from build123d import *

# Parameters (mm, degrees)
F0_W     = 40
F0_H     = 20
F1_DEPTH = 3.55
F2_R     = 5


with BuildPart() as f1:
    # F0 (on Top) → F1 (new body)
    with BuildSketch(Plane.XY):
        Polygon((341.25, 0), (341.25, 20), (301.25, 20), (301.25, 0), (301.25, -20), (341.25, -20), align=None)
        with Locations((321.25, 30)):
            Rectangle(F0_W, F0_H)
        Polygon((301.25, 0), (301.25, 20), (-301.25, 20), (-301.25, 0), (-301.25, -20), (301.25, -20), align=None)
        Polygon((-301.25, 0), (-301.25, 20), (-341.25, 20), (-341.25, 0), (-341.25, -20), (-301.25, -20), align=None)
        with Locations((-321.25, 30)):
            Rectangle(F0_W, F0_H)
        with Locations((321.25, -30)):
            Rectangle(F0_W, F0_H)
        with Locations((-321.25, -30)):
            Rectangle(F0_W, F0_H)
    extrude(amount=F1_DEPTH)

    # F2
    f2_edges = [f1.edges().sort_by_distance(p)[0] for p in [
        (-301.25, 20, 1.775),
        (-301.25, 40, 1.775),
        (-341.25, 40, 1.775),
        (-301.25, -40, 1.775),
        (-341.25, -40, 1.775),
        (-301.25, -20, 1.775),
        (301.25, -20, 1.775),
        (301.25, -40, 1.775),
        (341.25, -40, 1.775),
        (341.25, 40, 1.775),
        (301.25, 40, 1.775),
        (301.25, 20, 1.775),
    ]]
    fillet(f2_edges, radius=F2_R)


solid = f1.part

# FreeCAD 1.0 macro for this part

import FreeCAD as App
import Part
import Sketcher

V = App.Vector


def edges_at(feature, points):
    """Names of the edges that pass closest to the given points."""
    edges = feature.Shape.Edges
    near = lambda p: min(range(len(edges)), key=lambda i: edges[i].distToShape(Part.Vertex(*p))[0])
    return sorted({f"Edge{near(p) + 1}" for p in points})

doc = App.newDocument("Part")
body = doc.addObject("PartDesign::Body", "Body")

# Sketch on XY plane
sketch1 = body.newObject("Sketcher::SketchObject", "Sketch")
sketch1.AttachmentSupport = (doc.getObject("XY_Plane"), [""])
sketch1.MapMode = "FlatFace"
sketch1.addGeometry(Part.LineSegment(V(341, 40, 0), V(301, 40, 0)), False)
sketch1.addGeometry(Part.LineSegment(V(301, 40, 0), V(301, 20, 0)), False)
sketch1.addGeometry(Part.LineSegment(V(301, 20, 0), V(-301, 20, 0)), False)
sketch1.addGeometry(Part.LineSegment(V(-301, 20, 0), V(-301, 40, 0)), False)
sketch1.addGeometry(Part.LineSegment(V(-301, 40, 0), V(-341, 40, 0)), False)
sketch1.addGeometry(Part.LineSegment(V(-341, 40, 0), V(-341, -40, 0)), False)
sketch1.addGeometry(Part.LineSegment(V(-341, -40, 0), V(-301, -40, 0)), False)
sketch1.addGeometry(Part.LineSegment(V(-301, -40, 0), V(-301, -20, 0)), False)
sketch1.addGeometry(Part.LineSegment(V(-301, -20, 0), V(301, -20, 0)), False)
sketch1.addGeometry(Part.LineSegment(V(301, -20, 0), V(301, -40, 0)), False)
sketch1.addGeometry(Part.LineSegment(V(301, -40, 0), V(341, -40, 0)), False)
sketch1.addGeometry(Part.LineSegment(V(341, -40, 0), V(341, 40, 0)), False)
sketch1.addConstraint(Sketcher.Constraint("Coincident", 0, 2, 1, 1))
sketch1.addConstraint(Sketcher.Constraint("Coincident", 1, 2, 2, 1))
sketch1.addConstraint(Sketcher.Constraint("Coincident", 2, 2, 3, 1))
sketch1.addConstraint(Sketcher.Constraint("Coincident", 3, 2, 4, 1))
sketch1.addConstraint(Sketcher.Constraint("Coincident", 4, 2, 5, 1))
sketch1.addConstraint(Sketcher.Constraint("Coincident", 5, 2, 6, 1))
sketch1.addConstraint(Sketcher.Constraint("Coincident", 6, 2, 7, 1))
sketch1.addConstraint(Sketcher.Constraint("Coincident", 7, 2, 8, 1))
sketch1.addConstraint(Sketcher.Constraint("Coincident", 8, 2, 9, 1))
sketch1.addConstraint(Sketcher.Constraint("Coincident", 9, 2, 10, 1))
sketch1.addConstraint(Sketcher.Constraint("Coincident", 10, 2, 11, 1))
sketch1.addConstraint(Sketcher.Constraint("Coincident", 11, 2, 0, 1))
sketch1.addConstraint(Sketcher.Constraint("Horizontal", 0))
sketch1.addConstraint(Sketcher.Constraint("Vertical", 1))
sketch1.addConstraint(Sketcher.Constraint("Horizontal", 2))
sketch1.addConstraint(Sketcher.Constraint("Vertical", 3))
sketch1.addConstraint(Sketcher.Constraint("Horizontal", 4))
sketch1.addConstraint(Sketcher.Constraint("Vertical", 5))
sketch1.addConstraint(Sketcher.Constraint("Horizontal", 6))
sketch1.addConstraint(Sketcher.Constraint("Vertical", 7))
sketch1.addConstraint(Sketcher.Constraint("Horizontal", 8))
sketch1.addConstraint(Sketcher.Constraint("Vertical", 9))
sketch1.addConstraint(Sketcher.Constraint("Horizontal", 10))
sketch1.addConstraint(Sketcher.Constraint("Vertical", 11))
sketch1.addConstraint(Sketcher.Constraint("Symmetric", 0, 2, 6, 2, -1, 1))
sketch1.addConstraint(Sketcher.Constraint("Symmetric", 2, 2, 8, 2, -1, 1))
sketch1.addConstraint(Sketcher.Constraint("Symmetric", 4, 2, 10, 2, -1, 1))
sketch1.addConstraint(Sketcher.Constraint("Symmetric", 0, 2, 3, 2, -2))
sketch1.addConstraint(Sketcher.Constraint("DistanceX", 0, 2, 0, 1, 40.0))
sketch1.addConstraint(Sketcher.Constraint("DistanceY", 1, 2, 1, 1, 20.0))
sketch1.addConstraint(Sketcher.Constraint("DistanceY", 5, 2, 5, 1, 80.0))
sketch1.addConstraint(Sketcher.Constraint("DistanceX", 2, 2, 2, 1, 602.5))
pad1 = body.newObject("PartDesign::Pad", "Pad")
pad1.Profile = sketch1
pad1.Length = 3.55
doc.recompute()

fillet = body.newObject("PartDesign::Fillet", "Fillet")
fillet.Base = (pad1, edges_at(pad1, [
    (-301.25, 20, 1.775),
    (-301.25, 40, 1.775),
    (-341.25, 40, 1.775),
    (-301.25, -40, 1.775),
    (-341.25, -40, 1.775),
    (-301.25, -20, 1.775),
    (301.25, -20, 1.775),
    (301.25, -40, 1.775),
    (341.25, -40, 1.775),
    (341.25, 40, 1.775),
    (301.25, 40, 1.775),
    (301.25, 20, 1.775),
]))
fillet.Radius = 5

doc.recompute()
